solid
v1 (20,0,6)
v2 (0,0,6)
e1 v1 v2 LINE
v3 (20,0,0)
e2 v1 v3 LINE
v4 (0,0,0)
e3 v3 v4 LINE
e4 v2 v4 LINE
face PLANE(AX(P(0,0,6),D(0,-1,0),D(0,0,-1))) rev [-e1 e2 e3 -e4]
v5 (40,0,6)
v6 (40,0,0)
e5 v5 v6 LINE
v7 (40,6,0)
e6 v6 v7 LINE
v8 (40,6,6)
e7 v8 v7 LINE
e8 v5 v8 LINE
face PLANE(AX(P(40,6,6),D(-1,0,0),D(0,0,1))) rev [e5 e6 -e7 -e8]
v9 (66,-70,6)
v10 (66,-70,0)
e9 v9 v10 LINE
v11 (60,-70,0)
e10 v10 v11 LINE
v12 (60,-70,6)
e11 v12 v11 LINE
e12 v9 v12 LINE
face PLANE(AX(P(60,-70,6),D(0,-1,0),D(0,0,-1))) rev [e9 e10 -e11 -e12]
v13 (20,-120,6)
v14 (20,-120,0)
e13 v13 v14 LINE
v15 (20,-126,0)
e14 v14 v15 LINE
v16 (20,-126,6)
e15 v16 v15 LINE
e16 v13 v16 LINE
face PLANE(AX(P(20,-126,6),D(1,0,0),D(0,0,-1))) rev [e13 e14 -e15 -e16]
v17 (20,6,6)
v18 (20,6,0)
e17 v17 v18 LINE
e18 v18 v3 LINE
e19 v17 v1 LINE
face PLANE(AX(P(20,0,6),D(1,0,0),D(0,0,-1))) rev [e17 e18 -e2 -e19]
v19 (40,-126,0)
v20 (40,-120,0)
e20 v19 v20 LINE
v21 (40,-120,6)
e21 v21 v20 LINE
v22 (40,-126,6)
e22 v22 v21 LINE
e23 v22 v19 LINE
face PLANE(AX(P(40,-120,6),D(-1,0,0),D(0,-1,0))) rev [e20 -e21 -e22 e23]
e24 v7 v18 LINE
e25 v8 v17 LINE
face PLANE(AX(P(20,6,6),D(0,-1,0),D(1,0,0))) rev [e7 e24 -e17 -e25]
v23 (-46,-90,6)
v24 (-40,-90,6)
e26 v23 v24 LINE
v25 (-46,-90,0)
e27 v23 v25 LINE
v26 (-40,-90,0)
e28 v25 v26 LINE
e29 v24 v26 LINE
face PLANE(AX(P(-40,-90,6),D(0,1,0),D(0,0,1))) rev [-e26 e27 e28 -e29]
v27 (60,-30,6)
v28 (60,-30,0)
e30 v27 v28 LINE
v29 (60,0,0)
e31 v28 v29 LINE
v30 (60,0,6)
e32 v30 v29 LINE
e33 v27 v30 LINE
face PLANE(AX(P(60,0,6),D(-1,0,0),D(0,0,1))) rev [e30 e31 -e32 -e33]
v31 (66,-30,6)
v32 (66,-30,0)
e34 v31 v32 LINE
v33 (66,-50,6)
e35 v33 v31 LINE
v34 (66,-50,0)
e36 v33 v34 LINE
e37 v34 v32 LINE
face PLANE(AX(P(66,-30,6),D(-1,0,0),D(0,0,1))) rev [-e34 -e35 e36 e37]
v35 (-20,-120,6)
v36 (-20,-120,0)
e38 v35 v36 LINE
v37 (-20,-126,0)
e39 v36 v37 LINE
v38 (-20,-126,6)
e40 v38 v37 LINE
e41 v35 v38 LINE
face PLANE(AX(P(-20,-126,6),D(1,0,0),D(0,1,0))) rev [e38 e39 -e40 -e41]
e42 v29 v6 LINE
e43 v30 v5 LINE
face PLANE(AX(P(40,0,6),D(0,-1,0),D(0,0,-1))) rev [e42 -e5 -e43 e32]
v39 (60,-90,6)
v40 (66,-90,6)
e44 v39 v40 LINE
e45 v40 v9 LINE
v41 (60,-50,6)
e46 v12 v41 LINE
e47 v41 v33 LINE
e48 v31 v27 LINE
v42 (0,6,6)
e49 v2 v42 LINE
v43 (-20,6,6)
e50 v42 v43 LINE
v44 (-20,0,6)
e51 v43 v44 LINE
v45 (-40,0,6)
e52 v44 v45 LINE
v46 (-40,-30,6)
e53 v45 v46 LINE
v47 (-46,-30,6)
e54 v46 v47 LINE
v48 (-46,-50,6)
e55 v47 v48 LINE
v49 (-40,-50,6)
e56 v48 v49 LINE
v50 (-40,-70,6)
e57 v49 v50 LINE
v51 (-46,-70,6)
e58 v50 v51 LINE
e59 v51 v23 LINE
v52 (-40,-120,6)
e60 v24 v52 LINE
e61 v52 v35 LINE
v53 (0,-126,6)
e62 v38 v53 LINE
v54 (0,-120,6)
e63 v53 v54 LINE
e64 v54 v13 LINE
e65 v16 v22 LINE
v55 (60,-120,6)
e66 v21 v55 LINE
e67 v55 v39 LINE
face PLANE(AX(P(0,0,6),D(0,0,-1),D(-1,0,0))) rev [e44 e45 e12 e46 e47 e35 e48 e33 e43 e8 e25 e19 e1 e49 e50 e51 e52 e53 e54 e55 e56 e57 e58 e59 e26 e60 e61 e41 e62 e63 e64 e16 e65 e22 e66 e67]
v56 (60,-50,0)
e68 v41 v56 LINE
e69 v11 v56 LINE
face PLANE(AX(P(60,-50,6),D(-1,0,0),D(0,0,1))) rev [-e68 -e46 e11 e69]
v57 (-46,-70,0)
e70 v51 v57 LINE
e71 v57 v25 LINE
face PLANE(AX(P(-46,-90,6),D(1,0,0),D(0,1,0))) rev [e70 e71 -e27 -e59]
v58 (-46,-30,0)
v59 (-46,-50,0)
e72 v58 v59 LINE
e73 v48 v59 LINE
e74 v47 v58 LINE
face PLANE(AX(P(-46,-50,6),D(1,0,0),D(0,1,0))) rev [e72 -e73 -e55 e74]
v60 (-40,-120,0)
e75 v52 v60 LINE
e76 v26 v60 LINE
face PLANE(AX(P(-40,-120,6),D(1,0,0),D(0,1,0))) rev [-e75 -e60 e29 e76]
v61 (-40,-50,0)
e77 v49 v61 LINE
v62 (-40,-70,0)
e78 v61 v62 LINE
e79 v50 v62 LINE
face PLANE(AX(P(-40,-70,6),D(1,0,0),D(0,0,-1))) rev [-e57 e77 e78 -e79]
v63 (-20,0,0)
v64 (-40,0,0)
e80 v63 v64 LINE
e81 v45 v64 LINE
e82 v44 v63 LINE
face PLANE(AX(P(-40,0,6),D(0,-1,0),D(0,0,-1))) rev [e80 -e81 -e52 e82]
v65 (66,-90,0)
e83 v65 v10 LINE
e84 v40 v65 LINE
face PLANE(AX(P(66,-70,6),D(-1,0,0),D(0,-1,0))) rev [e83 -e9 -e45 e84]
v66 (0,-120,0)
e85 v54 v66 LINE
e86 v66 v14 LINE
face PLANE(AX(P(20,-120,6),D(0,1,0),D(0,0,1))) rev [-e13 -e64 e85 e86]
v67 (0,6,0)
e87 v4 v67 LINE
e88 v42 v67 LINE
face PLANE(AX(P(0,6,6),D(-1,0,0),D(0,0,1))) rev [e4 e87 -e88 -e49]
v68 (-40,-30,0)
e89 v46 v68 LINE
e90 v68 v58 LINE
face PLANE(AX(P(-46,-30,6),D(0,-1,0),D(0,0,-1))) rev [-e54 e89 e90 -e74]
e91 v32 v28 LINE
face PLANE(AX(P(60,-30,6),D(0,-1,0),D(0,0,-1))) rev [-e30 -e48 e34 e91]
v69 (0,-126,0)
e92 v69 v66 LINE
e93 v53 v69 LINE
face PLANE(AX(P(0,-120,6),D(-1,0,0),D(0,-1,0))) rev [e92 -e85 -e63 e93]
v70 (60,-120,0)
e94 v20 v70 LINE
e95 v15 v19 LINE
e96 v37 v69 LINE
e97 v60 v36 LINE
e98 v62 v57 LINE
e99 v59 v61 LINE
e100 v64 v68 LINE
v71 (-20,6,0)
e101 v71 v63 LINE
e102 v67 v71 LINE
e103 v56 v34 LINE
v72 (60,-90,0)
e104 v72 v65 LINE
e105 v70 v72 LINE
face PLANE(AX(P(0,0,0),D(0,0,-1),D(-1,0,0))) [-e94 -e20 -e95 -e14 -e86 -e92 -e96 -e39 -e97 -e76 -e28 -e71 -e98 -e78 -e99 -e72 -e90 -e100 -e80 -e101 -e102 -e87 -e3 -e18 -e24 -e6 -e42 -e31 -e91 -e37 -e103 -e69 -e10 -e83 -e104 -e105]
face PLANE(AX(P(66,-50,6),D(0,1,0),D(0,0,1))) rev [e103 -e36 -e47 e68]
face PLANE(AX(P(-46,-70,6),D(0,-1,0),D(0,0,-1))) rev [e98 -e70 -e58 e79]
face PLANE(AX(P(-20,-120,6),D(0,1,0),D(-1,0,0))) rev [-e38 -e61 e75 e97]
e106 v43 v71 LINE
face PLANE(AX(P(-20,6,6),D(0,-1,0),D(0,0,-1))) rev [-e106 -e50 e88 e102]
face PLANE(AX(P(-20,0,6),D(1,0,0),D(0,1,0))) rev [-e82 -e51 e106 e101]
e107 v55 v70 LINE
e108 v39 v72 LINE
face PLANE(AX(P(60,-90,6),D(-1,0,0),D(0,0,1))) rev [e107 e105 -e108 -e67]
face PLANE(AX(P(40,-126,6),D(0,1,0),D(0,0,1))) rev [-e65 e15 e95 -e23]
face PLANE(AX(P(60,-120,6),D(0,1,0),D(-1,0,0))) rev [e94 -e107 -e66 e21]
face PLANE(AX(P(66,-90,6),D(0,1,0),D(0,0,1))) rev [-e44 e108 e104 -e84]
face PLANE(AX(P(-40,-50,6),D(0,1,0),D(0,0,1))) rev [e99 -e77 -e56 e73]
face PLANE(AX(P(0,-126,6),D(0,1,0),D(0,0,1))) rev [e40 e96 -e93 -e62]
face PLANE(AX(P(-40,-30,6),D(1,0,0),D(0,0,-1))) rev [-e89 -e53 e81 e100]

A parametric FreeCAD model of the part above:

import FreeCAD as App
import Part
import Sketcher
Q = App.Units.Quantity


def add_polygon(sketch, points):
    """Adds a closed chain of lines whose ends are joined by coincident constraints."""
    first, n = sketch.GeometryCount, len(points)
    for a, b in zip(points, points[1:] + points[:1]):
        sketch.addGeometry(Part.LineSegment(App.Vector(*a, 0), App.Vector(*b, 0)), False)
    for i in range(n):
        sketch.addConstraint(Sketcher.Constraint("Coincident", first + i, 2, first + (i + 1) % n, 1))

doc = App.newDocument("Part")
params = doc.addObject("Spreadsheet::Sheet", "Params")
for row, (alias, value) in enumerate([
    ("sketch1_width", "20 mm"),
    ("sketch1_width2", "6 mm"),
    ("sketch1_height", "30 mm"),
    ("pad1_length", "6 mm"),
], start=1):
    params.set(f"A{row}", alias)
    params.set(f"B{row}", "=" + value)
    params.setAlias(f"B{row}", alias)

body = doc.addObject("PartDesign::Body", "Body")

# Sketch on XY plane
sketch1 = body.newObject("Sketcher::SketchObject", "Sketch")
sketch1.AttachmentSupport = (doc.getObject("XY_Plane"), [""])
sketch1.MapMode = "FlatFace"
add_polygon(sketch1, [(-20, 0), (-40, 0), (-40, -30), (-46, -30), (-46, -50), (-40, -50), (-40, -70), (-46, -70), (-46, -90), (-40, -90), (-40, -120), (-20, -120), (-20, -126), (0, -126), (0, -120), (20, -120), (20, -126), (40, -126), (40, -120), (60, -120), (60, -90), (66, -90), (66, -70), (60, -70), (60, -50), (66, -50), (66, -30), (60, -30), (60, 0), (40, 0), (40, 6), (20, 6), (20, 0), (0, 0), (0, 6), (-20, 6)])  # lines 0-35
sketch1.addConstraint([
    Sketcher.Constraint("Horizontal", 0),
    Sketcher.Constraint("Vertical", 1),
    Sketcher.Constraint("Horizontal", 2),
    Sketcher.Constraint("Vertical", 3),
    Sketcher.Constraint("Horizontal", 4),
    Sketcher.Constraint("Vertical", 5),
    Sketcher.Constraint("Horizontal", 6),
    Sketcher.Constraint("Vertical", 7),
    Sketcher.Constraint("Horizontal", 8),
    Sketcher.Constraint("Vertical", 9),
    Sketcher.Constraint("Horizontal", 10),
    Sketcher.Constraint("Vertical", 11),
    Sketcher.Constraint("Horizontal", 12),
    Sketcher.Constraint("Vertical", 13),
    Sketcher.Constraint("Horizontal", 14),
    Sketcher.Constraint("Vertical", 15),
    Sketcher.Constraint("Horizontal", 16),
    Sketcher.Constraint("Vertical", 17),
    Sketcher.Constraint("Horizontal", 18),
    Sketcher.Constraint("Vertical", 19),
    Sketcher.Constraint("Horizontal", 20),
    Sketcher.Constraint("Vertical", 21),
    Sketcher.Constraint("Horizontal", 22),
    Sketcher.Constraint("Vertical", 23),
    Sketcher.Constraint("Horizontal", 24),
    Sketcher.Constraint("Vertical", 25),
    Sketcher.Constraint("Horizontal", 26),
    Sketcher.Constraint("Vertical", 27),
    Sketcher.Constraint("Horizontal", 28),
    Sketcher.Constraint("Vertical", 29),
    Sketcher.Constraint("Horizontal", 30),
    Sketcher.Constraint("Vertical", 31),
    Sketcher.Constraint("Horizontal", 32),
    Sketcher.Constraint("Vertical", 33),
    Sketcher.Constraint("Horizontal", 34),
    Sketcher.Constraint("Vertical", 35),
    Sketcher.Constraint("Coincident", 32, 2, -1, 1),
    Sketcher.Constraint("Symmetric", 0, 2, 28, 2, -1, 1),
    Sketcher.Constraint("Symmetric", 31, 2, 35, 2, -1, 1),
    Sketcher.Constraint("Symmetric", 10, 2, 14, 2, -2),
    Sketcher.Constraint("Symmetric", 9, 2, 17, 2, -2),
    Sketcher.Constraint("PointOnObject", 12, 2, -2),
    Sketcher.Constraint("Horizontal", 12, 2, 15, 2),
    Sketcher.Constraint("Horizontal", 8, 2, 19, 2),
    Sketcher.Constraint("Horizontal", 6, 2, 21, 2),
    Sketcher.Constraint("Horizontal", 4, 2, 23, 2),
    Sketcher.Constraint("Horizontal", 2, 2, 25, 2),
    Sketcher.Constraint("Horizontal", 30, 2, 33, 2),
    Sketcher.Constraint("Vertical", 1, 2, 4, 2),
    Sketcher.Constraint("Vertical", 3, 2, 6, 2),
    Sketcher.Constraint("Vertical", 5, 2, 8, 2),
    Sketcher.Constraint("Vertical", 19, 2, 22, 2),
    Sketcher.Constraint("Vertical", 21, 2, 24, 2),
    Sketcher.Constraint("Vertical", 23, 2, 26, 2),
    Sketcher.Constraint("Vertical", 15, 2, 30, 2),
    Sketcher.Constraint("Equal", 10, 12),
    Sketcher.Constraint("Equal", 16, 18),
    Sketcher.Constraint("Equal", 8, 20),
    Sketcher.Constraint("Equal", 34, 3),
    Sketcher.Constraint("Equal", 3, 5),
    Sketcher.Constraint("Equal", 5, 7),
    Sketcher.Constraint("Equal", 1, 9),
    Sketcher.Constraint("Equal", 26, 11),
    Sketcher.Constraint("Equal", 17, 29),
    Sketcher.Constraint("DistanceX", 0, 2, 0, 1, Q("20 mm")),
    Sketcher.Constraint("DistanceX", 2, 2, 2, 1, Q("6 mm")),
    Sketcher.Constraint("DistanceY", 1, 2, 1, 1, Q("30 mm")),
])
sketch1.setExpression("Constraints[100]", "Params.sketch1_width")
sketch1.setExpression("Constraints[101]", "Params.sketch1_width2")
sketch1.setExpression("Constraints[102]", "Params.sketch1_height")
pad1 = body.newObject("PartDesign::Pad", "Pad")
pad1.Profile = sketch1
pad1.setExpression("Length", "Params.pad1_length")

doc.recompute()
